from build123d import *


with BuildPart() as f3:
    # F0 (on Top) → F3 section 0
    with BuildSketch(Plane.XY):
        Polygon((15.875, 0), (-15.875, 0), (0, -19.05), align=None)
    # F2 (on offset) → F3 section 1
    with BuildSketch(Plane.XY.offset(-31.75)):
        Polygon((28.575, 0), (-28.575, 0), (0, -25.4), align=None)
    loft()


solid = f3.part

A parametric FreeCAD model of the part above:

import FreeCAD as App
import Part
import Sketcher
Q = App.Units.Quantity

doc = App.newDocument("Part")
body = doc.addObject("PartDesign::Body", "Body")

sketch1 = doc.addObject("Sketcher::SketchObject", "Sketch")
body.addObject(sketch1)
sketch1.AttachmentSupport = (doc.XY_Plane, [""])
sketch1.MapMode = "FlatFace"
sketch1.addGeometry(Part.LineSegment(App.Vector(16, 0, 0), App.Vector(-16, 0, 0)), False)
sketch1.addGeometry(Part.LineSegment(App.Vector(-16, 0, 0), App.Vector(0, -19, 0)), False)
sketch1.addGeometry(Part.LineSegment(App.Vector(0, -19, 0), App.Vector(16, 0, 0)), False)
sketch1.addConstraint(Sketcher.Constraint("Coincident", 0, 2, 1, 1))
sketch1.addConstraint(Sketcher.Constraint("Coincident", 1, 2, 2, 1))
sketch1.addConstraint(Sketcher.Constraint("Coincident", 2, 2, 0, 1))
sketch1.addConstraint(Sketcher.Constraint("Horizontal", 0))
sketch1.addConstraint(Sketcher.Constraint("Symmetric", 0, 2, 2, 2, -1, 1))
sketch1.addConstraint(Sketcher.Constraint("PointOnObject", 1, 2, -2))
sketch1.addConstraint(Sketcher.Constraint("DistanceX", 0, 2, 0, 1, Q("1.25 in")))
sketch1.addConstraint(Sketcher.Constraint("DistanceY", 1, 2, -1, 1, Q("0.75 in")))

sketch2 = doc.addObject("Sketcher::SketchObject", "Sketch001")
body.addObject(sketch2)
sketch2.AttachmentSupport = (doc.XY_Plane, [""])
sketch2.MapMode = "FlatFace"
sketch2.AttachmentOffset = App.Placement(App.Vector(0, 0, -1.25 * 25.4), App.Rotation())
sketch2.addGeometry(Part.LineSegment(App.Vector(29, 0, 0), App.Vector(-29, 0, 0)), False)
sketch2.addGeometry(Part.LineSegment(App.Vector(-29, 0, 0), App.Vector(0, -25, 0)), False)
sketch2.addGeometry(Part.LineSegment(App.Vector(0, -25, 0), App.Vector(29, 0, 0)), False)
sketch2.addConstraint(Sketcher.Constraint("Coincident", 0, 2, 1, 1))
sketch2.addConstraint(Sketcher.Constraint("Coincident", 1, 2, 2, 1))
sketch2.addConstraint(Sketcher.Constraint("Coincident", 2, 2, 0, 1))
sketch2.addConstraint(Sketcher.Constraint("Horizontal", 0))
sketch2.addConstraint(Sketcher.Constraint("Symmetric", 0, 2, 2, 2, -1, 1))
sketch2.addConstraint(Sketcher.Constraint("PointOnObject", 1, 2, -2))
sketch2.addConstraint(Sketcher.Constraint("DistanceY", 1, 2, -1, 1, Q("1 in")))
sketch2.addConstraint(Sketcher.Constraint("DistanceX", 0, 2, 0, 1, Q("2.25 in")))

additiveloft = doc.addObject("PartDesign::AdditiveLoft", "AdditiveLoft")
body.addObject(additiveloft)
additiveloft.Profile = sketch1
additiveloft.Sections = [sketch2]

doc.recompute()
